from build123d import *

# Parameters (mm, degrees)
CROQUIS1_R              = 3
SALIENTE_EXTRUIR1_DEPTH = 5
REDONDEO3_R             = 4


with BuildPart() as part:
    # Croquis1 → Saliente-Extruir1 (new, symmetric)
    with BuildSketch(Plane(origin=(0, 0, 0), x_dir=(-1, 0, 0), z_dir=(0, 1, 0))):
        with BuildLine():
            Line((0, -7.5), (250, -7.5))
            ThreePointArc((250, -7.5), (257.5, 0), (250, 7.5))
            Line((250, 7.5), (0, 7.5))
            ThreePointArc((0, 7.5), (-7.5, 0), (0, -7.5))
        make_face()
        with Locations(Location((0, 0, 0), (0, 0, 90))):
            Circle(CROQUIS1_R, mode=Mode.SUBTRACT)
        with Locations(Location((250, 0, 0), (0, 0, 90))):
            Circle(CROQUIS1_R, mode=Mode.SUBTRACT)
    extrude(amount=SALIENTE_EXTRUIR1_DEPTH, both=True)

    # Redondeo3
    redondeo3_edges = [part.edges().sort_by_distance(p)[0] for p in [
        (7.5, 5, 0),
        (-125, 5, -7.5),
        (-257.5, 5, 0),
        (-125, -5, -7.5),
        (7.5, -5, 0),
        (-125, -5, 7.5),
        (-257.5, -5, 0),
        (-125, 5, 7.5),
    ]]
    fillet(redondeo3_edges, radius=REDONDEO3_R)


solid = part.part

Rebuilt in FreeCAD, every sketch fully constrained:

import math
import FreeCAD as App
import Part
import Sketcher


def edges_at(feature, points):
    """Names of the edges that pass closest to the given points."""
    edges = feature.Shape.Edges
    near = lambda p: min(range(len(edges)), key=lambda i: edges[i].distToShape(Part.Vertex(*p))[0])
    return sorted({f"Edge{near(p) + 1}" for p in points})

doc = App.newDocument("Part")
body = doc.addObject("PartDesign::Body", "Body")

sketch1 = doc.addObject("Sketcher::SketchObject", "Sketch")
body.addObject(sketch1)
sketch1.AttachmentSupport = (doc.XZ_Plane, [""])
sketch1.MapMode = "FlatFace"
sketch1.addGeometry([
    Part.LineSegment(App.Vector(0, -7.5, 0), App.Vector(-250, -7.5, 0)),
    Part.ArcOfCircle(Part.Circle(App.Vector(-250, 0, 0), App.Vector(0, 0, 1), 7.5), math.radians(90), math.radians(270)),
    Part.LineSegment(App.Vector(-250, 7.5, 0), App.Vector(0, 7.5, 0)),
    Part.ArcOfCircle(Part.Circle(App.Vector(0, 0, 0), App.Vector(0, 0, 1), 7.5), math.radians(-90), math.radians(90)),
    Part.Circle(App.Vector(0, 0, 0), App.Vector(0, 0, 1), 3),
    Part.Circle(App.Vector(-250, 0, 0), App.Vector(0, 0, 1), 3),
], False)
sketch1.addConstraint([
    Sketcher.Constraint("Tangent", 0, 2, 1, 2),
    Sketcher.Constraint("Tangent", 1, 1, 2, 1),
    Sketcher.Constraint("Tangent", 2, 2, 3, 2),
    Sketcher.Constraint("Tangent", 3, 1, 0, 1),
    Sketcher.Constraint("Horizontal", 0),
    Sketcher.Constraint("Horizontal", 2),
    Sketcher.Constraint("Coincident", 3, 3, -1, 1),
    Sketcher.Constraint("Coincident", 4, 3, -1, 1),
    Sketcher.Constraint("Coincident", 5, 3, 1, 3),
    Sketcher.Constraint("Equal", 4, 5),
    Sketcher.Constraint("Diameter", 4, 6.0),
    Sketcher.Constraint("Radius", 1, 7.5),
    Sketcher.Constraint("DistanceX", 0, 2, 0, 1, 250.0),
])
pad1 = doc.addObject("PartDesign::Pad", "Pad")
body.addObject(pad1)
pad1.Profile = sketch1
pad1.Length = 10
pad1.Midplane = True
doc.recompute()

fillet = doc.addObject("PartDesign::Fillet", "Fillet")
body.addObject(fillet)
fillet.Base = (pad1, edges_at(pad1, [
    (7.5, 5, 0),
    (-125, 5, -7.5),
    (-257.5, 5, 0),
    (-125, -5, -7.5),
    (7.5, -5, 0),
    (-125, -5, 7.5),
    (-257.5, -5, 0),
    (-125, 5, 7.5),
]))
fillet.Radius = 4

doc.recompute()
